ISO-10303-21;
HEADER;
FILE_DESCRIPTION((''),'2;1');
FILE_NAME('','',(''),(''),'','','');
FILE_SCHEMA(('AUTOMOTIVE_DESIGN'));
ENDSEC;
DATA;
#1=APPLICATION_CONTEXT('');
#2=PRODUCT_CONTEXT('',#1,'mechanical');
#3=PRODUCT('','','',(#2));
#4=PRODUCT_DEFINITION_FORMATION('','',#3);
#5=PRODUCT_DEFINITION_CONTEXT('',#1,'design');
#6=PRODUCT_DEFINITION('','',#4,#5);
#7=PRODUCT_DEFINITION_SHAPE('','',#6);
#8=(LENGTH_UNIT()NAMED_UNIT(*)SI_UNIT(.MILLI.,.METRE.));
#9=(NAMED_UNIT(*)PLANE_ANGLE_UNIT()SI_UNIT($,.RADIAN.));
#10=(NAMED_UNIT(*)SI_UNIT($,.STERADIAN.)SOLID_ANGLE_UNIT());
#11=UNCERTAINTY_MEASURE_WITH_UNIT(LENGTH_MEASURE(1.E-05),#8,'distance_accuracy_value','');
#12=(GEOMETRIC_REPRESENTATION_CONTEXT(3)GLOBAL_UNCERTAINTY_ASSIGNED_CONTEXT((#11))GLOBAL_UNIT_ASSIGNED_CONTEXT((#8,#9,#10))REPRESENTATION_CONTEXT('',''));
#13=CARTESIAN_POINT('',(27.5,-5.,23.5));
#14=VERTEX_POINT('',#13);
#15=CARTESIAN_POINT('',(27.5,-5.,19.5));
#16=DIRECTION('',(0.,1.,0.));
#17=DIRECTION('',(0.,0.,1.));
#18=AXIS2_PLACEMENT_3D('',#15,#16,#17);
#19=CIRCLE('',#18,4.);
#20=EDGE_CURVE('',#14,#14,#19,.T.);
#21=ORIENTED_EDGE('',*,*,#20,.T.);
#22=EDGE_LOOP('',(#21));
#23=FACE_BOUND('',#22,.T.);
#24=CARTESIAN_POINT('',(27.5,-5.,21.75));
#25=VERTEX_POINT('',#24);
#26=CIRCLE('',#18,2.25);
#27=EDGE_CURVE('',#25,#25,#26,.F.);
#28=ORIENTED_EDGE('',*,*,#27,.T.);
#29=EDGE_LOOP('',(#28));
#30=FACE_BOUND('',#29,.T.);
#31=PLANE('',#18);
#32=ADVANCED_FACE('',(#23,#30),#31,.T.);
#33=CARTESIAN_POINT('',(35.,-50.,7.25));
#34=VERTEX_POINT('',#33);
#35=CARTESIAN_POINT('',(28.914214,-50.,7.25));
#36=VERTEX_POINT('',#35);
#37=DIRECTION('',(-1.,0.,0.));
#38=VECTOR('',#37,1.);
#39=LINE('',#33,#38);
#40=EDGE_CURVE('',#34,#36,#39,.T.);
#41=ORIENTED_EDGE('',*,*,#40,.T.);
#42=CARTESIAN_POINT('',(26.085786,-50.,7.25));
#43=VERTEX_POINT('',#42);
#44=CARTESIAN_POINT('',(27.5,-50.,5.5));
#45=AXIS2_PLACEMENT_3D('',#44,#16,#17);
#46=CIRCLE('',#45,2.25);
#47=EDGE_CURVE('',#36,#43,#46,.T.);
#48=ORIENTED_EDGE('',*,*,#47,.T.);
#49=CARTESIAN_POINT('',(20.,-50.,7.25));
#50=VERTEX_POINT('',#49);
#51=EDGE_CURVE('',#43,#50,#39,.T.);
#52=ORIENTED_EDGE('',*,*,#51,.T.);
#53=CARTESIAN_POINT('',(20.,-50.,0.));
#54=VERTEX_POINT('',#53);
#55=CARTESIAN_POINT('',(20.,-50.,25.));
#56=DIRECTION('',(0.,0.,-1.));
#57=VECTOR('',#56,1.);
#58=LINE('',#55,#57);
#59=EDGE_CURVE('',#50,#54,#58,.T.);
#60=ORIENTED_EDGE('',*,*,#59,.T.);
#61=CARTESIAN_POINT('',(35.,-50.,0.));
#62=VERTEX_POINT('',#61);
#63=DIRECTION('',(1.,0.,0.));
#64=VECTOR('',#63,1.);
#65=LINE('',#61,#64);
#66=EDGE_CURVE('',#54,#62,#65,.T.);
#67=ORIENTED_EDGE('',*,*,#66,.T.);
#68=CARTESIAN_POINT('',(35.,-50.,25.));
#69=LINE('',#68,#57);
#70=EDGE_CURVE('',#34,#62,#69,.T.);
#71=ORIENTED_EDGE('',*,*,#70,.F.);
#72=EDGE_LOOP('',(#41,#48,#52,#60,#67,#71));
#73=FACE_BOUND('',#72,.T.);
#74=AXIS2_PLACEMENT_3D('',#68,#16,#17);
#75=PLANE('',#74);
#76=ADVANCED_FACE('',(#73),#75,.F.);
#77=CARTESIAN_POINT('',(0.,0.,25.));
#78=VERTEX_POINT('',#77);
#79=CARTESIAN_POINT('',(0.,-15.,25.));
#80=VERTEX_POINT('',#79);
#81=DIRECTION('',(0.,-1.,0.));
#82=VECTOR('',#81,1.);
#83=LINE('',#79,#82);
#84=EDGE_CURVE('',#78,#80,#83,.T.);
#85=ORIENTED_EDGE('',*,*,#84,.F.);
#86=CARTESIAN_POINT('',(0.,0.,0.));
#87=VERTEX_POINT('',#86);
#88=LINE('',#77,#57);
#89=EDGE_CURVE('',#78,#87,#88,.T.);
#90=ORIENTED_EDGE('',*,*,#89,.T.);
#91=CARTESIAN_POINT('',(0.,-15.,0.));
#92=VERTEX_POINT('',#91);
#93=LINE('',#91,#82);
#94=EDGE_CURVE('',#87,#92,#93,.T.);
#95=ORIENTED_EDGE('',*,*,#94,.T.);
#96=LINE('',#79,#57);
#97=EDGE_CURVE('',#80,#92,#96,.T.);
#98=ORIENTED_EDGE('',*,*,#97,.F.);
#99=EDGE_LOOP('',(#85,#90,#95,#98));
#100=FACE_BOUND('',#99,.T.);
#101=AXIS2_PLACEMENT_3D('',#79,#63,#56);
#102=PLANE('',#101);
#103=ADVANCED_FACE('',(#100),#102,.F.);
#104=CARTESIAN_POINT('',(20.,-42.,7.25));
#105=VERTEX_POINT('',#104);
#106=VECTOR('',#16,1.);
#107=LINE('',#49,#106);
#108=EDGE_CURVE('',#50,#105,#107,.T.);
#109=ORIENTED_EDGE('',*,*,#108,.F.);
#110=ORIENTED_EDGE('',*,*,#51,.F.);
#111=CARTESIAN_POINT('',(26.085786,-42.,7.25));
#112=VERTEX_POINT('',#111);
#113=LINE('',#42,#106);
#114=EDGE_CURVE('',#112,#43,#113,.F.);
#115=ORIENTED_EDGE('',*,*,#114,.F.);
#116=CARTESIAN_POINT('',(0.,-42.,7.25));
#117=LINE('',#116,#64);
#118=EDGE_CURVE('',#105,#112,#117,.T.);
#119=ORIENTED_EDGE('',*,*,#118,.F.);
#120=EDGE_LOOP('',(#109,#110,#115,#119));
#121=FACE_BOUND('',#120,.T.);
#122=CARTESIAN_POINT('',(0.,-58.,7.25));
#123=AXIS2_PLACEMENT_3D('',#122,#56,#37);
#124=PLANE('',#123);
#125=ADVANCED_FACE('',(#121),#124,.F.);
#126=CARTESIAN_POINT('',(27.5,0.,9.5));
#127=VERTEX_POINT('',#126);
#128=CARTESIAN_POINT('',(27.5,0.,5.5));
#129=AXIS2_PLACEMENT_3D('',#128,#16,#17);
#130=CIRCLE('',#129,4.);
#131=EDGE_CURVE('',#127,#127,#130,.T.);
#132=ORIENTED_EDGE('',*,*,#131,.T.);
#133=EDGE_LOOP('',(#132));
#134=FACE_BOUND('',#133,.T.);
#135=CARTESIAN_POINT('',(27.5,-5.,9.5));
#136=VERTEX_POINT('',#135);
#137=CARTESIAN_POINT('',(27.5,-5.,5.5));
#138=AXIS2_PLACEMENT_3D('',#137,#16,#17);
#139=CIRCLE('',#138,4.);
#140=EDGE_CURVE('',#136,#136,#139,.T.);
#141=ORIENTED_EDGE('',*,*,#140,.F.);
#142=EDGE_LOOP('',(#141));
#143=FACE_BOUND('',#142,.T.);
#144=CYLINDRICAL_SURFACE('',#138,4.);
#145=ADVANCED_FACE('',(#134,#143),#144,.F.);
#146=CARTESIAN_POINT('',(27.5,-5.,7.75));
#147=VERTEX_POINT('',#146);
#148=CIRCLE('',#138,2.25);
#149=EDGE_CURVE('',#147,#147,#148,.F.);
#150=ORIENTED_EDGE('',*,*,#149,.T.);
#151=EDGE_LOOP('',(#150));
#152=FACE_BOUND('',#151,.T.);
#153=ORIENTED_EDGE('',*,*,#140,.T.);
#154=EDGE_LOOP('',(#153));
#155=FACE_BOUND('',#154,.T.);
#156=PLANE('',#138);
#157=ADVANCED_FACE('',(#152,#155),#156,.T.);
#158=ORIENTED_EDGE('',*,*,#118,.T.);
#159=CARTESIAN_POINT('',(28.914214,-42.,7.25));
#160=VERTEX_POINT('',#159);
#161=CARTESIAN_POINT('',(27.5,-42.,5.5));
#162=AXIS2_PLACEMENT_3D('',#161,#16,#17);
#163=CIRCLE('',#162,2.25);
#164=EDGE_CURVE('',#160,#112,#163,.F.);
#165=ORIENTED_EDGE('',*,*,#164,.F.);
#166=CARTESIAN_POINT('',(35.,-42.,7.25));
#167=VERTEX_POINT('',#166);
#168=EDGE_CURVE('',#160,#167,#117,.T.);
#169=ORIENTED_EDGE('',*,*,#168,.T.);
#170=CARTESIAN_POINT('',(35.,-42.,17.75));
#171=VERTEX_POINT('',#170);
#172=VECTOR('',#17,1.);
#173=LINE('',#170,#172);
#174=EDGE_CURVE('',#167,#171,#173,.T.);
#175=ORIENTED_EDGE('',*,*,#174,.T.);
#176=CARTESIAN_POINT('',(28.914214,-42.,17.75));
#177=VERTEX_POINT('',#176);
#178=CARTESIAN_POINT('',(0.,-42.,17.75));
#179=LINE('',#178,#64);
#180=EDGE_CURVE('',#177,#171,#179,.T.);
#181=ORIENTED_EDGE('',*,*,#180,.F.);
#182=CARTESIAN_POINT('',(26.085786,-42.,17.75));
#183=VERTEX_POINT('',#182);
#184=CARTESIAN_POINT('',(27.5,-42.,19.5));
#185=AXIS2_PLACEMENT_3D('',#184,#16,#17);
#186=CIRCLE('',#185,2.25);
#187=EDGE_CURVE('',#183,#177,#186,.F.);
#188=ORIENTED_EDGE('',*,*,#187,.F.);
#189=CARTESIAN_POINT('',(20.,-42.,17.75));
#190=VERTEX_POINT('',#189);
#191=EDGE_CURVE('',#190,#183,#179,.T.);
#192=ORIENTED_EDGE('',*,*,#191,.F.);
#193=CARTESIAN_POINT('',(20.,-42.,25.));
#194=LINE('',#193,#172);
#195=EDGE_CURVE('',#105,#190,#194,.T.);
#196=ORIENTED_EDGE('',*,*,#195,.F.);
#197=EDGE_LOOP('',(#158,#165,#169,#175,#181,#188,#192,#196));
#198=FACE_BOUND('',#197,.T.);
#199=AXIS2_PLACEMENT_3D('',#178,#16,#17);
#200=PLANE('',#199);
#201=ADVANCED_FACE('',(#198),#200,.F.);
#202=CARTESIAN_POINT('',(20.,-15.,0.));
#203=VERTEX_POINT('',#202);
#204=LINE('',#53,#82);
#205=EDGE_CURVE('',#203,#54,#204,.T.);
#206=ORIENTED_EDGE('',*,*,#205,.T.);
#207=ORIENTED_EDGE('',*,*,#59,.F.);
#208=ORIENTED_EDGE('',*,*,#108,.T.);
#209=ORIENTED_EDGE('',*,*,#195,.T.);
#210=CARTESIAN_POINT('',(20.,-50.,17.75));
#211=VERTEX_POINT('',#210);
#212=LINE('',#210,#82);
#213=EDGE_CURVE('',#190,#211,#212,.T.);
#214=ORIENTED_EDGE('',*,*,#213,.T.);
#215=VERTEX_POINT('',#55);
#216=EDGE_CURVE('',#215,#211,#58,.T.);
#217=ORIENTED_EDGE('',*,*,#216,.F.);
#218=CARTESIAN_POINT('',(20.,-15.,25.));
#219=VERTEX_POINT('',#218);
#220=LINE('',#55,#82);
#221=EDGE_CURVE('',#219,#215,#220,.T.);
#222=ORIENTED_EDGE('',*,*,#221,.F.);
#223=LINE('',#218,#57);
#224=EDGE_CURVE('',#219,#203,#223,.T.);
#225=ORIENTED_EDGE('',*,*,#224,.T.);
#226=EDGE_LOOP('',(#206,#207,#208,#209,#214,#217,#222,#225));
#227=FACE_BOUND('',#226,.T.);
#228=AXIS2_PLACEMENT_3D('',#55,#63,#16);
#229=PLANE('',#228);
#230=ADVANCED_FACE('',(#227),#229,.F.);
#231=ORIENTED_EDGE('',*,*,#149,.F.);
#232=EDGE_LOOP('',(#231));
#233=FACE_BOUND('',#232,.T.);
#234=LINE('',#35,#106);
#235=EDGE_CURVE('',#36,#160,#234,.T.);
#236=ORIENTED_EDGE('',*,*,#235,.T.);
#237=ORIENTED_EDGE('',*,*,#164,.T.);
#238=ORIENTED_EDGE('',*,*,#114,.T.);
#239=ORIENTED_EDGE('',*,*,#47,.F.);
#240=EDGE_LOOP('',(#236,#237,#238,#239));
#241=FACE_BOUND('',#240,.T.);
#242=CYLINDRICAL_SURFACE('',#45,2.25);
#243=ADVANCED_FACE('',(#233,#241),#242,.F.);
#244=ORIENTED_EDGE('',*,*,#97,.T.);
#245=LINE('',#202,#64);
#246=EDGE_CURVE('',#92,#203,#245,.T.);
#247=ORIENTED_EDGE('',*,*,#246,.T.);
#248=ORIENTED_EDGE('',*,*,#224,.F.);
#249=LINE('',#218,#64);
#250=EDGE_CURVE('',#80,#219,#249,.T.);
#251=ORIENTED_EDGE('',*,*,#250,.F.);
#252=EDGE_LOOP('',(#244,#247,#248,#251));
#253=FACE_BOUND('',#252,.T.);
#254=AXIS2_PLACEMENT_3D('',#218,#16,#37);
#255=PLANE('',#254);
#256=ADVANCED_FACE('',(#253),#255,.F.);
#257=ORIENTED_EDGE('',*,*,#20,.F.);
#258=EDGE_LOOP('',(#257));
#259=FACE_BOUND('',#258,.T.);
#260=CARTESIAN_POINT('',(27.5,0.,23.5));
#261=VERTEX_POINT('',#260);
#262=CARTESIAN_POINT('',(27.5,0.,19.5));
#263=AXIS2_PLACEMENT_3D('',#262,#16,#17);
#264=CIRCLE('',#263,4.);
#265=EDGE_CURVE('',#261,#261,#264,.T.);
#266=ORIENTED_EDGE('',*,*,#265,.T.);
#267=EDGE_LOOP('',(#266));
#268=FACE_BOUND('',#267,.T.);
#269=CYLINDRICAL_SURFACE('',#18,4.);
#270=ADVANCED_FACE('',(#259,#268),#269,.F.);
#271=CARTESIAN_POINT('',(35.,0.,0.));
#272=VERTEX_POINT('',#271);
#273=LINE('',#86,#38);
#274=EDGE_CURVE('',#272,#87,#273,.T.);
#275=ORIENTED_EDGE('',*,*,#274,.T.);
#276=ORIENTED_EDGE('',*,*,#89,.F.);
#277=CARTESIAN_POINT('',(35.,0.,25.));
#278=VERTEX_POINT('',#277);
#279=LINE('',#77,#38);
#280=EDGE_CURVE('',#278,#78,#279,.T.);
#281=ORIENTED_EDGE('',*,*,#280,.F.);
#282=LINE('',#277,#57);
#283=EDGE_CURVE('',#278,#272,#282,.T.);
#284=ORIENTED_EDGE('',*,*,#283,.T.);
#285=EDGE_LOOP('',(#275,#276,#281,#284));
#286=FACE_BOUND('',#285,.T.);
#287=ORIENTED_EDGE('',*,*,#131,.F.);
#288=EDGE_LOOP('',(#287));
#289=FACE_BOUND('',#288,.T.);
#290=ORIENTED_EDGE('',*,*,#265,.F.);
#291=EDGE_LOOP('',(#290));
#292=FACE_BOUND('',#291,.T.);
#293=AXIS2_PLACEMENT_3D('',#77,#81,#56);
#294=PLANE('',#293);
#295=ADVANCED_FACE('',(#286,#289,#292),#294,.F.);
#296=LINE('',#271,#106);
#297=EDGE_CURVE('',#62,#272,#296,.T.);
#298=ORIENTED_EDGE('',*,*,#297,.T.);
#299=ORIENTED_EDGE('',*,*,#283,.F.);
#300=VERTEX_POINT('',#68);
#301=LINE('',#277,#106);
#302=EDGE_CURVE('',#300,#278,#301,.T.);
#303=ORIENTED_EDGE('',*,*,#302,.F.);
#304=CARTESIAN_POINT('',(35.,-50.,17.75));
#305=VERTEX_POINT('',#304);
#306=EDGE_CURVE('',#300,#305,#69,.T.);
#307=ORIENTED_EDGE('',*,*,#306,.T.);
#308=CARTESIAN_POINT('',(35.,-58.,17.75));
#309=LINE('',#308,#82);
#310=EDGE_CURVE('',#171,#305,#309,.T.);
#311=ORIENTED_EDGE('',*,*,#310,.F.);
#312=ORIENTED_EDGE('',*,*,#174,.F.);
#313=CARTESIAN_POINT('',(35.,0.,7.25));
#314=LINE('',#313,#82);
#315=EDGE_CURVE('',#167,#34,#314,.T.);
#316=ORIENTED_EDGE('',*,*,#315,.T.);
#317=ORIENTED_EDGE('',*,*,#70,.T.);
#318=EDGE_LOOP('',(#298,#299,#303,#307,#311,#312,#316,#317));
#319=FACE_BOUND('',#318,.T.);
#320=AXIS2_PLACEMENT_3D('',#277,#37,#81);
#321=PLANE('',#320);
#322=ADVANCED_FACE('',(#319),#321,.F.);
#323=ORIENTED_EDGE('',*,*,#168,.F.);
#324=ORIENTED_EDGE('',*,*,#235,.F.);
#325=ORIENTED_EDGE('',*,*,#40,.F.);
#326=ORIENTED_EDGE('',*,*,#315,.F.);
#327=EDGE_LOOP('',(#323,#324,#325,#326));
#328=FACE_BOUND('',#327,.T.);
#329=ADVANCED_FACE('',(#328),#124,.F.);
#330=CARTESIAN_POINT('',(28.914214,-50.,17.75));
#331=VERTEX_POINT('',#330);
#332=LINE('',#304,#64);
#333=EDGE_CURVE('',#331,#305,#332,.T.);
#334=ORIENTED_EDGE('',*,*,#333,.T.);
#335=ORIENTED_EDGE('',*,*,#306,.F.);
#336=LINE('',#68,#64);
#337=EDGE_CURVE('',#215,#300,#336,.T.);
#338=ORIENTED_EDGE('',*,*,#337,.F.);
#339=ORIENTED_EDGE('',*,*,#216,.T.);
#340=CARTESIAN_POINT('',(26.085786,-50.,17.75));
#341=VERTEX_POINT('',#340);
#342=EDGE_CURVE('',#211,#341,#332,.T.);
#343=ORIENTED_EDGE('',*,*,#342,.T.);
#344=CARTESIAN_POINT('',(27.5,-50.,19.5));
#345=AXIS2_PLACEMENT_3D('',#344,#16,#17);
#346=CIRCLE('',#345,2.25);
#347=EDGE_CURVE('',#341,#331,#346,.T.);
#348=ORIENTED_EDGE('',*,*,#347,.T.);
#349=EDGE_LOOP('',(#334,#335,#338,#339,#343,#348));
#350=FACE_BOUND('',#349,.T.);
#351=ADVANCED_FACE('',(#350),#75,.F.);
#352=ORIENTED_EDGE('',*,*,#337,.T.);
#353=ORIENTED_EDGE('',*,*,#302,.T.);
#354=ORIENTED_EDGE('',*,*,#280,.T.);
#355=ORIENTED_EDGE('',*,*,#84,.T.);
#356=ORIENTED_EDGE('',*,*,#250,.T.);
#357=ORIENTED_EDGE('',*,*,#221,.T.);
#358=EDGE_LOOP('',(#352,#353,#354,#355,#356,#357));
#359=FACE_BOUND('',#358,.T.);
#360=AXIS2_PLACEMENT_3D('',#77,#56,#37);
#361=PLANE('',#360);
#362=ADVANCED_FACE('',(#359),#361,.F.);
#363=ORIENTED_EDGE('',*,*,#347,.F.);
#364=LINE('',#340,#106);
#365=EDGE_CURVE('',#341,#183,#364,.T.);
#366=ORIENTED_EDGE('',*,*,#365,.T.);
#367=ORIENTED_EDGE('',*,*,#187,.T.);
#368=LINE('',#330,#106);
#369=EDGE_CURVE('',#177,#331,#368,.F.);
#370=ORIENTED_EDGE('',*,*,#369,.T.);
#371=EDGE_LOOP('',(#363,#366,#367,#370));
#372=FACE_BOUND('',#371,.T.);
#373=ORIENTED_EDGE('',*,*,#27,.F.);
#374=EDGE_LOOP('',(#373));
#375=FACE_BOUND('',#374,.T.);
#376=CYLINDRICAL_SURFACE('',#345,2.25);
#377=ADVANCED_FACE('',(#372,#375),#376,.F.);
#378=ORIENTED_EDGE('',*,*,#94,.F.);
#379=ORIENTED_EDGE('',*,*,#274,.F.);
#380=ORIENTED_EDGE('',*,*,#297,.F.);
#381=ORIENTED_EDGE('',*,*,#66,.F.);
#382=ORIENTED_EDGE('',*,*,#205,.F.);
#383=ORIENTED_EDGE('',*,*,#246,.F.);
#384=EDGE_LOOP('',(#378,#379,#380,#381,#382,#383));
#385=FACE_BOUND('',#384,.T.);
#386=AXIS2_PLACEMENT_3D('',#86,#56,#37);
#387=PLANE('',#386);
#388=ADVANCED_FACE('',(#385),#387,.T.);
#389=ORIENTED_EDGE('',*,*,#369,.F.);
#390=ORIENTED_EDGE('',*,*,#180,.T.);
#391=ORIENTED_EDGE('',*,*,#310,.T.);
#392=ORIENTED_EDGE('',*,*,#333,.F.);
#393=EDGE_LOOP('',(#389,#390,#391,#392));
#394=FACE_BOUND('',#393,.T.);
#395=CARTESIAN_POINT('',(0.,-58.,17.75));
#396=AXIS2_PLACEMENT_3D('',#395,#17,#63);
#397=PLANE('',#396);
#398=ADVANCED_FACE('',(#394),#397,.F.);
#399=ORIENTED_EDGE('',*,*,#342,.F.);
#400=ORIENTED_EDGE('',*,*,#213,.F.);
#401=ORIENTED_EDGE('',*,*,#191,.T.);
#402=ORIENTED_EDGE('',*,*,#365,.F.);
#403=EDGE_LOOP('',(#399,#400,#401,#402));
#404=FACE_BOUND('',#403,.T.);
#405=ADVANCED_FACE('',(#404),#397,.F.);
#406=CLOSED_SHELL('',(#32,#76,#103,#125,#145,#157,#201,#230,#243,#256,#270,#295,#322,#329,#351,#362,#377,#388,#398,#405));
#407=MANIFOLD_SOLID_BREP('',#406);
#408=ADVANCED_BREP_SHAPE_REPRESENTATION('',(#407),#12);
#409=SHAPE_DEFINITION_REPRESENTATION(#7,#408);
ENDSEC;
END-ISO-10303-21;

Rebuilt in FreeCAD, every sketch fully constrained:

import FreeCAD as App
import Part
import Sketcher
Q = App.Units.Quantity

doc = App.newDocument("Part")
body = doc.addObject("PartDesign::Body", "Body")

sketch1 = body.newObject("Sketcher::SketchObject", "Sketch")
sketch1.AttachmentSupport = (doc.getObject("XY_Plane"), [""])
sketch1.MapMode = "FlatFace"
sketch1.addGeometry(Part.LineSegment(App.Vector(35, 0, 0), App.Vector(0, 0, 0)), False)
sketch1.addGeometry(Part.LineSegment(App.Vector(0, 0, 0), App.Vector(0, -15, 0)), False)
sketch1.addGeometry(Part.LineSegment(App.Vector(0, -15, 0), App.Vector(20, -15, 0)), False)
sketch1.addGeometry(Part.LineSegment(App.Vector(20, -15, 0), App.Vector(20, -50, 0)), False)
sketch1.addGeometry(Part.LineSegment(App.Vector(20, -50, 0), App.Vector(35, -50, 0)), False)
sketch1.addGeometry(Part.LineSegment(App.Vector(35, -50, 0), App.Vector(35, 0, 0)), False)
sketch1.addConstraint(Sketcher.Constraint("Coincident", 0, 2, 1, 1))
sketch1.addConstraint(Sketcher.Constraint("Coincident", 1, 2, 2, 1))
sketch1.addConstraint(Sketcher.Constraint("Coincident", 2, 2, 3, 1))
sketch1.addConstraint(Sketcher.Constraint("Coincident", 3, 2, 4, 1))
sketch1.addConstraint(Sketcher.Constraint("Coincident", 4, 2, 5, 1))
sketch1.addConstraint(Sketcher.Constraint("Coincident", 5, 2, 0, 1))
sketch1.addConstraint(Sketcher.Constraint("Horizontal", 0))
sketch1.addConstraint(Sketcher.Constraint("Vertical", 1))
sketch1.addConstraint(Sketcher.Constraint("Horizontal", 2))
sketch1.addConstraint(Sketcher.Constraint("Vertical", 3))
sketch1.addConstraint(Sketcher.Constraint("Horizontal", 4))
sketch1.addConstraint(Sketcher.Constraint("Vertical", 5))
sketch1.addConstraint(Sketcher.Constraint("Coincident", 0, 2, -1, 1))
sketch1.addConstraint(Sketcher.Constraint("Equal", 4, 1))
sketch1.addConstraint(Sketcher.Constraint("Equal", 0, 3))
sketch1.addConstraint(Sketcher.Constraint("DistanceX", 0, 2, 0, 1, Q("35 mm")))
sketch1.addConstraint(Sketcher.Constraint("DistanceX", 2, 1, 2, 2, Q("20 mm")))
pad1 = body.newObject("PartDesign::Pad", "Pad")
pad1.Profile = sketch1
pad1.Length = 25

sketch2 = body.newObject("Sketcher::SketchObject", "Sketch001")
sketch2.AttachmentSupport = (doc.getObject("XZ_Plane"), [""])
sketch2.MapMode = "FlatFace"
sketch2.addGeometry(Part.Circle(App.Vector(27.5, 5.5, 0), App.Vector(0, 0, 1), 2.25), False)
sketch2.addGeometry(Part.Circle(App.Vector(27.5, 19.5, 0), App.Vector(0, 0, 1), 2.25), False)
sketch2.addConstraint(Sketcher.Constraint("Equal", 0, 1))
sketch2.addConstraint(Sketcher.Constraint("Vertical", 0, 3, 1, 3))
sketch2.addConstraint(Sketcher.Constraint("Diameter", 0, Q("4.5 mm")))
sketch2.addConstraint(Sketcher.Constraint("DistanceY", 0, 3, 1, 3, Q("14 mm")))
sketch2.addConstraint(Sketcher.Constraint("DistanceX", -1, 1, 0, 3, Q("27.5 mm")))
sketch2.addConstraint(Sketcher.Constraint("DistanceY", -1, 1, 0, 3, Q("5.5 mm")))
pocket1 = body.newObject("PartDesign::Pocket", "Pocket")
pocket1.Profile = sketch2
pocket1.Type = "ThroughAll"
pocket1.Reversed = True

sketch3 = body.newObject("Sketcher::SketchObject", "Sketch002")
sketch3.AttachmentSupport = (doc.getObject("XZ_Plane"), [""])
sketch3.MapMode = "FlatFace"
sketch3.addGeometry(Part.Circle(App.Vector(27.5, 5.5, 0), App.Vector(0, 0, 1), 4), False)
sketch3.addGeometry(Part.Circle(App.Vector(27.5, 19.5, 0), App.Vector(0, 0, 1), 4), False)
sketch3.addConstraint(Sketcher.Constraint("Equal", 0, 1))
sketch3.addConstraint(Sketcher.Constraint("Vertical", 0, 3, 1, 3))
sketch3.addConstraint(Sketcher.Constraint("Diameter", 0, Q("8 mm")))
sketch3.addConstraint(Sketcher.Constraint("DistanceY", 0, 3, 1, 3, Q("14 mm")))
sketch3.addConstraint(Sketcher.Constraint("DistanceX", -1, 1, 0, 3, Q("27.5 mm")))
sketch3.addConstraint(Sketcher.Constraint("DistanceY", -1, 1, 0, 3, Q("5.5 mm")))
pocket2 = body.newObject("PartDesign::Pocket", "Pocket001")
pocket2.Profile = sketch3
pocket2.Length = 5
pocket2.Reversed = True

sketch4 = body.newObject("Sketcher::SketchObject", "Sketch003")
sketch4.AttachmentSupport = (doc.getObject("YZ_Plane"), [""])
sketch4.MapMode = "FlatFace"
sketch4.AttachmentOffset = App.Placement(App.Vector(0, 0, 35), App.Rotation())
sketch4.addGeometry(Part.LineSegment(App.Vector(-42, 17.75, 0), App.Vector(-58, 17.75, 0)), False)
sketch4.addGeometry(Part.LineSegment(App.Vector(-58, 17.75, 0), App.Vector(-58, 7.25, 0)), False)
sketch4.addGeometry(Part.LineSegment(App.Vector(-58, 7.25, 0), App.Vector(-42, 7.25, 0)), False)
sketch4.addGeometry(Part.LineSegment(App.Vector(-42, 7.25, 0), App.Vector(-42, 17.75, 0)), False)
sketch4.addConstraint(Sketcher.Constraint("Coincident", 0, 2, 1, 1))
sketch4.addConstraint(Sketcher.Constraint("Coincident", 1, 2, 2, 1))
sketch4.addConstraint(Sketcher.Constraint("Coincident", 2, 2, 3, 1))
sketch4.addConstraint(Sketcher.Constraint("Coincident", 3, 2, 0, 1))
sketch4.addConstraint(Sketcher.Constraint("Horizontal", 0))
sketch4.addConstraint(Sketcher.Constraint("Vertical", 1))
sketch4.addConstraint(Sketcher.Constraint("Horizontal", 2))
sketch4.addConstraint(Sketcher.Constraint("Vertical", 3))
sketch4.addConstraint(Sketcher.Constraint("DistanceX", 0, 2, 0, 1, Q("16 mm")))
sketch4.addConstraint(Sketcher.Constraint("DistanceY", 1, 2, 1, 1, Q("10.5 mm")))
sketch4.addConstraint(Sketcher.Constraint("DistanceX", 0, 2, -1, 1, Q("58 mm")))
sketch4.addConstraint(Sketcher.Constraint("DistanceY", -1, 1, 0, 2, Q("17.75 mm")))
pocket3 = body.newObject("PartDesign::Pocket", "Pocket002")
pocket3.Profile = sketch4
pocket3.Type = "ThroughAll"

doc.recompute()
